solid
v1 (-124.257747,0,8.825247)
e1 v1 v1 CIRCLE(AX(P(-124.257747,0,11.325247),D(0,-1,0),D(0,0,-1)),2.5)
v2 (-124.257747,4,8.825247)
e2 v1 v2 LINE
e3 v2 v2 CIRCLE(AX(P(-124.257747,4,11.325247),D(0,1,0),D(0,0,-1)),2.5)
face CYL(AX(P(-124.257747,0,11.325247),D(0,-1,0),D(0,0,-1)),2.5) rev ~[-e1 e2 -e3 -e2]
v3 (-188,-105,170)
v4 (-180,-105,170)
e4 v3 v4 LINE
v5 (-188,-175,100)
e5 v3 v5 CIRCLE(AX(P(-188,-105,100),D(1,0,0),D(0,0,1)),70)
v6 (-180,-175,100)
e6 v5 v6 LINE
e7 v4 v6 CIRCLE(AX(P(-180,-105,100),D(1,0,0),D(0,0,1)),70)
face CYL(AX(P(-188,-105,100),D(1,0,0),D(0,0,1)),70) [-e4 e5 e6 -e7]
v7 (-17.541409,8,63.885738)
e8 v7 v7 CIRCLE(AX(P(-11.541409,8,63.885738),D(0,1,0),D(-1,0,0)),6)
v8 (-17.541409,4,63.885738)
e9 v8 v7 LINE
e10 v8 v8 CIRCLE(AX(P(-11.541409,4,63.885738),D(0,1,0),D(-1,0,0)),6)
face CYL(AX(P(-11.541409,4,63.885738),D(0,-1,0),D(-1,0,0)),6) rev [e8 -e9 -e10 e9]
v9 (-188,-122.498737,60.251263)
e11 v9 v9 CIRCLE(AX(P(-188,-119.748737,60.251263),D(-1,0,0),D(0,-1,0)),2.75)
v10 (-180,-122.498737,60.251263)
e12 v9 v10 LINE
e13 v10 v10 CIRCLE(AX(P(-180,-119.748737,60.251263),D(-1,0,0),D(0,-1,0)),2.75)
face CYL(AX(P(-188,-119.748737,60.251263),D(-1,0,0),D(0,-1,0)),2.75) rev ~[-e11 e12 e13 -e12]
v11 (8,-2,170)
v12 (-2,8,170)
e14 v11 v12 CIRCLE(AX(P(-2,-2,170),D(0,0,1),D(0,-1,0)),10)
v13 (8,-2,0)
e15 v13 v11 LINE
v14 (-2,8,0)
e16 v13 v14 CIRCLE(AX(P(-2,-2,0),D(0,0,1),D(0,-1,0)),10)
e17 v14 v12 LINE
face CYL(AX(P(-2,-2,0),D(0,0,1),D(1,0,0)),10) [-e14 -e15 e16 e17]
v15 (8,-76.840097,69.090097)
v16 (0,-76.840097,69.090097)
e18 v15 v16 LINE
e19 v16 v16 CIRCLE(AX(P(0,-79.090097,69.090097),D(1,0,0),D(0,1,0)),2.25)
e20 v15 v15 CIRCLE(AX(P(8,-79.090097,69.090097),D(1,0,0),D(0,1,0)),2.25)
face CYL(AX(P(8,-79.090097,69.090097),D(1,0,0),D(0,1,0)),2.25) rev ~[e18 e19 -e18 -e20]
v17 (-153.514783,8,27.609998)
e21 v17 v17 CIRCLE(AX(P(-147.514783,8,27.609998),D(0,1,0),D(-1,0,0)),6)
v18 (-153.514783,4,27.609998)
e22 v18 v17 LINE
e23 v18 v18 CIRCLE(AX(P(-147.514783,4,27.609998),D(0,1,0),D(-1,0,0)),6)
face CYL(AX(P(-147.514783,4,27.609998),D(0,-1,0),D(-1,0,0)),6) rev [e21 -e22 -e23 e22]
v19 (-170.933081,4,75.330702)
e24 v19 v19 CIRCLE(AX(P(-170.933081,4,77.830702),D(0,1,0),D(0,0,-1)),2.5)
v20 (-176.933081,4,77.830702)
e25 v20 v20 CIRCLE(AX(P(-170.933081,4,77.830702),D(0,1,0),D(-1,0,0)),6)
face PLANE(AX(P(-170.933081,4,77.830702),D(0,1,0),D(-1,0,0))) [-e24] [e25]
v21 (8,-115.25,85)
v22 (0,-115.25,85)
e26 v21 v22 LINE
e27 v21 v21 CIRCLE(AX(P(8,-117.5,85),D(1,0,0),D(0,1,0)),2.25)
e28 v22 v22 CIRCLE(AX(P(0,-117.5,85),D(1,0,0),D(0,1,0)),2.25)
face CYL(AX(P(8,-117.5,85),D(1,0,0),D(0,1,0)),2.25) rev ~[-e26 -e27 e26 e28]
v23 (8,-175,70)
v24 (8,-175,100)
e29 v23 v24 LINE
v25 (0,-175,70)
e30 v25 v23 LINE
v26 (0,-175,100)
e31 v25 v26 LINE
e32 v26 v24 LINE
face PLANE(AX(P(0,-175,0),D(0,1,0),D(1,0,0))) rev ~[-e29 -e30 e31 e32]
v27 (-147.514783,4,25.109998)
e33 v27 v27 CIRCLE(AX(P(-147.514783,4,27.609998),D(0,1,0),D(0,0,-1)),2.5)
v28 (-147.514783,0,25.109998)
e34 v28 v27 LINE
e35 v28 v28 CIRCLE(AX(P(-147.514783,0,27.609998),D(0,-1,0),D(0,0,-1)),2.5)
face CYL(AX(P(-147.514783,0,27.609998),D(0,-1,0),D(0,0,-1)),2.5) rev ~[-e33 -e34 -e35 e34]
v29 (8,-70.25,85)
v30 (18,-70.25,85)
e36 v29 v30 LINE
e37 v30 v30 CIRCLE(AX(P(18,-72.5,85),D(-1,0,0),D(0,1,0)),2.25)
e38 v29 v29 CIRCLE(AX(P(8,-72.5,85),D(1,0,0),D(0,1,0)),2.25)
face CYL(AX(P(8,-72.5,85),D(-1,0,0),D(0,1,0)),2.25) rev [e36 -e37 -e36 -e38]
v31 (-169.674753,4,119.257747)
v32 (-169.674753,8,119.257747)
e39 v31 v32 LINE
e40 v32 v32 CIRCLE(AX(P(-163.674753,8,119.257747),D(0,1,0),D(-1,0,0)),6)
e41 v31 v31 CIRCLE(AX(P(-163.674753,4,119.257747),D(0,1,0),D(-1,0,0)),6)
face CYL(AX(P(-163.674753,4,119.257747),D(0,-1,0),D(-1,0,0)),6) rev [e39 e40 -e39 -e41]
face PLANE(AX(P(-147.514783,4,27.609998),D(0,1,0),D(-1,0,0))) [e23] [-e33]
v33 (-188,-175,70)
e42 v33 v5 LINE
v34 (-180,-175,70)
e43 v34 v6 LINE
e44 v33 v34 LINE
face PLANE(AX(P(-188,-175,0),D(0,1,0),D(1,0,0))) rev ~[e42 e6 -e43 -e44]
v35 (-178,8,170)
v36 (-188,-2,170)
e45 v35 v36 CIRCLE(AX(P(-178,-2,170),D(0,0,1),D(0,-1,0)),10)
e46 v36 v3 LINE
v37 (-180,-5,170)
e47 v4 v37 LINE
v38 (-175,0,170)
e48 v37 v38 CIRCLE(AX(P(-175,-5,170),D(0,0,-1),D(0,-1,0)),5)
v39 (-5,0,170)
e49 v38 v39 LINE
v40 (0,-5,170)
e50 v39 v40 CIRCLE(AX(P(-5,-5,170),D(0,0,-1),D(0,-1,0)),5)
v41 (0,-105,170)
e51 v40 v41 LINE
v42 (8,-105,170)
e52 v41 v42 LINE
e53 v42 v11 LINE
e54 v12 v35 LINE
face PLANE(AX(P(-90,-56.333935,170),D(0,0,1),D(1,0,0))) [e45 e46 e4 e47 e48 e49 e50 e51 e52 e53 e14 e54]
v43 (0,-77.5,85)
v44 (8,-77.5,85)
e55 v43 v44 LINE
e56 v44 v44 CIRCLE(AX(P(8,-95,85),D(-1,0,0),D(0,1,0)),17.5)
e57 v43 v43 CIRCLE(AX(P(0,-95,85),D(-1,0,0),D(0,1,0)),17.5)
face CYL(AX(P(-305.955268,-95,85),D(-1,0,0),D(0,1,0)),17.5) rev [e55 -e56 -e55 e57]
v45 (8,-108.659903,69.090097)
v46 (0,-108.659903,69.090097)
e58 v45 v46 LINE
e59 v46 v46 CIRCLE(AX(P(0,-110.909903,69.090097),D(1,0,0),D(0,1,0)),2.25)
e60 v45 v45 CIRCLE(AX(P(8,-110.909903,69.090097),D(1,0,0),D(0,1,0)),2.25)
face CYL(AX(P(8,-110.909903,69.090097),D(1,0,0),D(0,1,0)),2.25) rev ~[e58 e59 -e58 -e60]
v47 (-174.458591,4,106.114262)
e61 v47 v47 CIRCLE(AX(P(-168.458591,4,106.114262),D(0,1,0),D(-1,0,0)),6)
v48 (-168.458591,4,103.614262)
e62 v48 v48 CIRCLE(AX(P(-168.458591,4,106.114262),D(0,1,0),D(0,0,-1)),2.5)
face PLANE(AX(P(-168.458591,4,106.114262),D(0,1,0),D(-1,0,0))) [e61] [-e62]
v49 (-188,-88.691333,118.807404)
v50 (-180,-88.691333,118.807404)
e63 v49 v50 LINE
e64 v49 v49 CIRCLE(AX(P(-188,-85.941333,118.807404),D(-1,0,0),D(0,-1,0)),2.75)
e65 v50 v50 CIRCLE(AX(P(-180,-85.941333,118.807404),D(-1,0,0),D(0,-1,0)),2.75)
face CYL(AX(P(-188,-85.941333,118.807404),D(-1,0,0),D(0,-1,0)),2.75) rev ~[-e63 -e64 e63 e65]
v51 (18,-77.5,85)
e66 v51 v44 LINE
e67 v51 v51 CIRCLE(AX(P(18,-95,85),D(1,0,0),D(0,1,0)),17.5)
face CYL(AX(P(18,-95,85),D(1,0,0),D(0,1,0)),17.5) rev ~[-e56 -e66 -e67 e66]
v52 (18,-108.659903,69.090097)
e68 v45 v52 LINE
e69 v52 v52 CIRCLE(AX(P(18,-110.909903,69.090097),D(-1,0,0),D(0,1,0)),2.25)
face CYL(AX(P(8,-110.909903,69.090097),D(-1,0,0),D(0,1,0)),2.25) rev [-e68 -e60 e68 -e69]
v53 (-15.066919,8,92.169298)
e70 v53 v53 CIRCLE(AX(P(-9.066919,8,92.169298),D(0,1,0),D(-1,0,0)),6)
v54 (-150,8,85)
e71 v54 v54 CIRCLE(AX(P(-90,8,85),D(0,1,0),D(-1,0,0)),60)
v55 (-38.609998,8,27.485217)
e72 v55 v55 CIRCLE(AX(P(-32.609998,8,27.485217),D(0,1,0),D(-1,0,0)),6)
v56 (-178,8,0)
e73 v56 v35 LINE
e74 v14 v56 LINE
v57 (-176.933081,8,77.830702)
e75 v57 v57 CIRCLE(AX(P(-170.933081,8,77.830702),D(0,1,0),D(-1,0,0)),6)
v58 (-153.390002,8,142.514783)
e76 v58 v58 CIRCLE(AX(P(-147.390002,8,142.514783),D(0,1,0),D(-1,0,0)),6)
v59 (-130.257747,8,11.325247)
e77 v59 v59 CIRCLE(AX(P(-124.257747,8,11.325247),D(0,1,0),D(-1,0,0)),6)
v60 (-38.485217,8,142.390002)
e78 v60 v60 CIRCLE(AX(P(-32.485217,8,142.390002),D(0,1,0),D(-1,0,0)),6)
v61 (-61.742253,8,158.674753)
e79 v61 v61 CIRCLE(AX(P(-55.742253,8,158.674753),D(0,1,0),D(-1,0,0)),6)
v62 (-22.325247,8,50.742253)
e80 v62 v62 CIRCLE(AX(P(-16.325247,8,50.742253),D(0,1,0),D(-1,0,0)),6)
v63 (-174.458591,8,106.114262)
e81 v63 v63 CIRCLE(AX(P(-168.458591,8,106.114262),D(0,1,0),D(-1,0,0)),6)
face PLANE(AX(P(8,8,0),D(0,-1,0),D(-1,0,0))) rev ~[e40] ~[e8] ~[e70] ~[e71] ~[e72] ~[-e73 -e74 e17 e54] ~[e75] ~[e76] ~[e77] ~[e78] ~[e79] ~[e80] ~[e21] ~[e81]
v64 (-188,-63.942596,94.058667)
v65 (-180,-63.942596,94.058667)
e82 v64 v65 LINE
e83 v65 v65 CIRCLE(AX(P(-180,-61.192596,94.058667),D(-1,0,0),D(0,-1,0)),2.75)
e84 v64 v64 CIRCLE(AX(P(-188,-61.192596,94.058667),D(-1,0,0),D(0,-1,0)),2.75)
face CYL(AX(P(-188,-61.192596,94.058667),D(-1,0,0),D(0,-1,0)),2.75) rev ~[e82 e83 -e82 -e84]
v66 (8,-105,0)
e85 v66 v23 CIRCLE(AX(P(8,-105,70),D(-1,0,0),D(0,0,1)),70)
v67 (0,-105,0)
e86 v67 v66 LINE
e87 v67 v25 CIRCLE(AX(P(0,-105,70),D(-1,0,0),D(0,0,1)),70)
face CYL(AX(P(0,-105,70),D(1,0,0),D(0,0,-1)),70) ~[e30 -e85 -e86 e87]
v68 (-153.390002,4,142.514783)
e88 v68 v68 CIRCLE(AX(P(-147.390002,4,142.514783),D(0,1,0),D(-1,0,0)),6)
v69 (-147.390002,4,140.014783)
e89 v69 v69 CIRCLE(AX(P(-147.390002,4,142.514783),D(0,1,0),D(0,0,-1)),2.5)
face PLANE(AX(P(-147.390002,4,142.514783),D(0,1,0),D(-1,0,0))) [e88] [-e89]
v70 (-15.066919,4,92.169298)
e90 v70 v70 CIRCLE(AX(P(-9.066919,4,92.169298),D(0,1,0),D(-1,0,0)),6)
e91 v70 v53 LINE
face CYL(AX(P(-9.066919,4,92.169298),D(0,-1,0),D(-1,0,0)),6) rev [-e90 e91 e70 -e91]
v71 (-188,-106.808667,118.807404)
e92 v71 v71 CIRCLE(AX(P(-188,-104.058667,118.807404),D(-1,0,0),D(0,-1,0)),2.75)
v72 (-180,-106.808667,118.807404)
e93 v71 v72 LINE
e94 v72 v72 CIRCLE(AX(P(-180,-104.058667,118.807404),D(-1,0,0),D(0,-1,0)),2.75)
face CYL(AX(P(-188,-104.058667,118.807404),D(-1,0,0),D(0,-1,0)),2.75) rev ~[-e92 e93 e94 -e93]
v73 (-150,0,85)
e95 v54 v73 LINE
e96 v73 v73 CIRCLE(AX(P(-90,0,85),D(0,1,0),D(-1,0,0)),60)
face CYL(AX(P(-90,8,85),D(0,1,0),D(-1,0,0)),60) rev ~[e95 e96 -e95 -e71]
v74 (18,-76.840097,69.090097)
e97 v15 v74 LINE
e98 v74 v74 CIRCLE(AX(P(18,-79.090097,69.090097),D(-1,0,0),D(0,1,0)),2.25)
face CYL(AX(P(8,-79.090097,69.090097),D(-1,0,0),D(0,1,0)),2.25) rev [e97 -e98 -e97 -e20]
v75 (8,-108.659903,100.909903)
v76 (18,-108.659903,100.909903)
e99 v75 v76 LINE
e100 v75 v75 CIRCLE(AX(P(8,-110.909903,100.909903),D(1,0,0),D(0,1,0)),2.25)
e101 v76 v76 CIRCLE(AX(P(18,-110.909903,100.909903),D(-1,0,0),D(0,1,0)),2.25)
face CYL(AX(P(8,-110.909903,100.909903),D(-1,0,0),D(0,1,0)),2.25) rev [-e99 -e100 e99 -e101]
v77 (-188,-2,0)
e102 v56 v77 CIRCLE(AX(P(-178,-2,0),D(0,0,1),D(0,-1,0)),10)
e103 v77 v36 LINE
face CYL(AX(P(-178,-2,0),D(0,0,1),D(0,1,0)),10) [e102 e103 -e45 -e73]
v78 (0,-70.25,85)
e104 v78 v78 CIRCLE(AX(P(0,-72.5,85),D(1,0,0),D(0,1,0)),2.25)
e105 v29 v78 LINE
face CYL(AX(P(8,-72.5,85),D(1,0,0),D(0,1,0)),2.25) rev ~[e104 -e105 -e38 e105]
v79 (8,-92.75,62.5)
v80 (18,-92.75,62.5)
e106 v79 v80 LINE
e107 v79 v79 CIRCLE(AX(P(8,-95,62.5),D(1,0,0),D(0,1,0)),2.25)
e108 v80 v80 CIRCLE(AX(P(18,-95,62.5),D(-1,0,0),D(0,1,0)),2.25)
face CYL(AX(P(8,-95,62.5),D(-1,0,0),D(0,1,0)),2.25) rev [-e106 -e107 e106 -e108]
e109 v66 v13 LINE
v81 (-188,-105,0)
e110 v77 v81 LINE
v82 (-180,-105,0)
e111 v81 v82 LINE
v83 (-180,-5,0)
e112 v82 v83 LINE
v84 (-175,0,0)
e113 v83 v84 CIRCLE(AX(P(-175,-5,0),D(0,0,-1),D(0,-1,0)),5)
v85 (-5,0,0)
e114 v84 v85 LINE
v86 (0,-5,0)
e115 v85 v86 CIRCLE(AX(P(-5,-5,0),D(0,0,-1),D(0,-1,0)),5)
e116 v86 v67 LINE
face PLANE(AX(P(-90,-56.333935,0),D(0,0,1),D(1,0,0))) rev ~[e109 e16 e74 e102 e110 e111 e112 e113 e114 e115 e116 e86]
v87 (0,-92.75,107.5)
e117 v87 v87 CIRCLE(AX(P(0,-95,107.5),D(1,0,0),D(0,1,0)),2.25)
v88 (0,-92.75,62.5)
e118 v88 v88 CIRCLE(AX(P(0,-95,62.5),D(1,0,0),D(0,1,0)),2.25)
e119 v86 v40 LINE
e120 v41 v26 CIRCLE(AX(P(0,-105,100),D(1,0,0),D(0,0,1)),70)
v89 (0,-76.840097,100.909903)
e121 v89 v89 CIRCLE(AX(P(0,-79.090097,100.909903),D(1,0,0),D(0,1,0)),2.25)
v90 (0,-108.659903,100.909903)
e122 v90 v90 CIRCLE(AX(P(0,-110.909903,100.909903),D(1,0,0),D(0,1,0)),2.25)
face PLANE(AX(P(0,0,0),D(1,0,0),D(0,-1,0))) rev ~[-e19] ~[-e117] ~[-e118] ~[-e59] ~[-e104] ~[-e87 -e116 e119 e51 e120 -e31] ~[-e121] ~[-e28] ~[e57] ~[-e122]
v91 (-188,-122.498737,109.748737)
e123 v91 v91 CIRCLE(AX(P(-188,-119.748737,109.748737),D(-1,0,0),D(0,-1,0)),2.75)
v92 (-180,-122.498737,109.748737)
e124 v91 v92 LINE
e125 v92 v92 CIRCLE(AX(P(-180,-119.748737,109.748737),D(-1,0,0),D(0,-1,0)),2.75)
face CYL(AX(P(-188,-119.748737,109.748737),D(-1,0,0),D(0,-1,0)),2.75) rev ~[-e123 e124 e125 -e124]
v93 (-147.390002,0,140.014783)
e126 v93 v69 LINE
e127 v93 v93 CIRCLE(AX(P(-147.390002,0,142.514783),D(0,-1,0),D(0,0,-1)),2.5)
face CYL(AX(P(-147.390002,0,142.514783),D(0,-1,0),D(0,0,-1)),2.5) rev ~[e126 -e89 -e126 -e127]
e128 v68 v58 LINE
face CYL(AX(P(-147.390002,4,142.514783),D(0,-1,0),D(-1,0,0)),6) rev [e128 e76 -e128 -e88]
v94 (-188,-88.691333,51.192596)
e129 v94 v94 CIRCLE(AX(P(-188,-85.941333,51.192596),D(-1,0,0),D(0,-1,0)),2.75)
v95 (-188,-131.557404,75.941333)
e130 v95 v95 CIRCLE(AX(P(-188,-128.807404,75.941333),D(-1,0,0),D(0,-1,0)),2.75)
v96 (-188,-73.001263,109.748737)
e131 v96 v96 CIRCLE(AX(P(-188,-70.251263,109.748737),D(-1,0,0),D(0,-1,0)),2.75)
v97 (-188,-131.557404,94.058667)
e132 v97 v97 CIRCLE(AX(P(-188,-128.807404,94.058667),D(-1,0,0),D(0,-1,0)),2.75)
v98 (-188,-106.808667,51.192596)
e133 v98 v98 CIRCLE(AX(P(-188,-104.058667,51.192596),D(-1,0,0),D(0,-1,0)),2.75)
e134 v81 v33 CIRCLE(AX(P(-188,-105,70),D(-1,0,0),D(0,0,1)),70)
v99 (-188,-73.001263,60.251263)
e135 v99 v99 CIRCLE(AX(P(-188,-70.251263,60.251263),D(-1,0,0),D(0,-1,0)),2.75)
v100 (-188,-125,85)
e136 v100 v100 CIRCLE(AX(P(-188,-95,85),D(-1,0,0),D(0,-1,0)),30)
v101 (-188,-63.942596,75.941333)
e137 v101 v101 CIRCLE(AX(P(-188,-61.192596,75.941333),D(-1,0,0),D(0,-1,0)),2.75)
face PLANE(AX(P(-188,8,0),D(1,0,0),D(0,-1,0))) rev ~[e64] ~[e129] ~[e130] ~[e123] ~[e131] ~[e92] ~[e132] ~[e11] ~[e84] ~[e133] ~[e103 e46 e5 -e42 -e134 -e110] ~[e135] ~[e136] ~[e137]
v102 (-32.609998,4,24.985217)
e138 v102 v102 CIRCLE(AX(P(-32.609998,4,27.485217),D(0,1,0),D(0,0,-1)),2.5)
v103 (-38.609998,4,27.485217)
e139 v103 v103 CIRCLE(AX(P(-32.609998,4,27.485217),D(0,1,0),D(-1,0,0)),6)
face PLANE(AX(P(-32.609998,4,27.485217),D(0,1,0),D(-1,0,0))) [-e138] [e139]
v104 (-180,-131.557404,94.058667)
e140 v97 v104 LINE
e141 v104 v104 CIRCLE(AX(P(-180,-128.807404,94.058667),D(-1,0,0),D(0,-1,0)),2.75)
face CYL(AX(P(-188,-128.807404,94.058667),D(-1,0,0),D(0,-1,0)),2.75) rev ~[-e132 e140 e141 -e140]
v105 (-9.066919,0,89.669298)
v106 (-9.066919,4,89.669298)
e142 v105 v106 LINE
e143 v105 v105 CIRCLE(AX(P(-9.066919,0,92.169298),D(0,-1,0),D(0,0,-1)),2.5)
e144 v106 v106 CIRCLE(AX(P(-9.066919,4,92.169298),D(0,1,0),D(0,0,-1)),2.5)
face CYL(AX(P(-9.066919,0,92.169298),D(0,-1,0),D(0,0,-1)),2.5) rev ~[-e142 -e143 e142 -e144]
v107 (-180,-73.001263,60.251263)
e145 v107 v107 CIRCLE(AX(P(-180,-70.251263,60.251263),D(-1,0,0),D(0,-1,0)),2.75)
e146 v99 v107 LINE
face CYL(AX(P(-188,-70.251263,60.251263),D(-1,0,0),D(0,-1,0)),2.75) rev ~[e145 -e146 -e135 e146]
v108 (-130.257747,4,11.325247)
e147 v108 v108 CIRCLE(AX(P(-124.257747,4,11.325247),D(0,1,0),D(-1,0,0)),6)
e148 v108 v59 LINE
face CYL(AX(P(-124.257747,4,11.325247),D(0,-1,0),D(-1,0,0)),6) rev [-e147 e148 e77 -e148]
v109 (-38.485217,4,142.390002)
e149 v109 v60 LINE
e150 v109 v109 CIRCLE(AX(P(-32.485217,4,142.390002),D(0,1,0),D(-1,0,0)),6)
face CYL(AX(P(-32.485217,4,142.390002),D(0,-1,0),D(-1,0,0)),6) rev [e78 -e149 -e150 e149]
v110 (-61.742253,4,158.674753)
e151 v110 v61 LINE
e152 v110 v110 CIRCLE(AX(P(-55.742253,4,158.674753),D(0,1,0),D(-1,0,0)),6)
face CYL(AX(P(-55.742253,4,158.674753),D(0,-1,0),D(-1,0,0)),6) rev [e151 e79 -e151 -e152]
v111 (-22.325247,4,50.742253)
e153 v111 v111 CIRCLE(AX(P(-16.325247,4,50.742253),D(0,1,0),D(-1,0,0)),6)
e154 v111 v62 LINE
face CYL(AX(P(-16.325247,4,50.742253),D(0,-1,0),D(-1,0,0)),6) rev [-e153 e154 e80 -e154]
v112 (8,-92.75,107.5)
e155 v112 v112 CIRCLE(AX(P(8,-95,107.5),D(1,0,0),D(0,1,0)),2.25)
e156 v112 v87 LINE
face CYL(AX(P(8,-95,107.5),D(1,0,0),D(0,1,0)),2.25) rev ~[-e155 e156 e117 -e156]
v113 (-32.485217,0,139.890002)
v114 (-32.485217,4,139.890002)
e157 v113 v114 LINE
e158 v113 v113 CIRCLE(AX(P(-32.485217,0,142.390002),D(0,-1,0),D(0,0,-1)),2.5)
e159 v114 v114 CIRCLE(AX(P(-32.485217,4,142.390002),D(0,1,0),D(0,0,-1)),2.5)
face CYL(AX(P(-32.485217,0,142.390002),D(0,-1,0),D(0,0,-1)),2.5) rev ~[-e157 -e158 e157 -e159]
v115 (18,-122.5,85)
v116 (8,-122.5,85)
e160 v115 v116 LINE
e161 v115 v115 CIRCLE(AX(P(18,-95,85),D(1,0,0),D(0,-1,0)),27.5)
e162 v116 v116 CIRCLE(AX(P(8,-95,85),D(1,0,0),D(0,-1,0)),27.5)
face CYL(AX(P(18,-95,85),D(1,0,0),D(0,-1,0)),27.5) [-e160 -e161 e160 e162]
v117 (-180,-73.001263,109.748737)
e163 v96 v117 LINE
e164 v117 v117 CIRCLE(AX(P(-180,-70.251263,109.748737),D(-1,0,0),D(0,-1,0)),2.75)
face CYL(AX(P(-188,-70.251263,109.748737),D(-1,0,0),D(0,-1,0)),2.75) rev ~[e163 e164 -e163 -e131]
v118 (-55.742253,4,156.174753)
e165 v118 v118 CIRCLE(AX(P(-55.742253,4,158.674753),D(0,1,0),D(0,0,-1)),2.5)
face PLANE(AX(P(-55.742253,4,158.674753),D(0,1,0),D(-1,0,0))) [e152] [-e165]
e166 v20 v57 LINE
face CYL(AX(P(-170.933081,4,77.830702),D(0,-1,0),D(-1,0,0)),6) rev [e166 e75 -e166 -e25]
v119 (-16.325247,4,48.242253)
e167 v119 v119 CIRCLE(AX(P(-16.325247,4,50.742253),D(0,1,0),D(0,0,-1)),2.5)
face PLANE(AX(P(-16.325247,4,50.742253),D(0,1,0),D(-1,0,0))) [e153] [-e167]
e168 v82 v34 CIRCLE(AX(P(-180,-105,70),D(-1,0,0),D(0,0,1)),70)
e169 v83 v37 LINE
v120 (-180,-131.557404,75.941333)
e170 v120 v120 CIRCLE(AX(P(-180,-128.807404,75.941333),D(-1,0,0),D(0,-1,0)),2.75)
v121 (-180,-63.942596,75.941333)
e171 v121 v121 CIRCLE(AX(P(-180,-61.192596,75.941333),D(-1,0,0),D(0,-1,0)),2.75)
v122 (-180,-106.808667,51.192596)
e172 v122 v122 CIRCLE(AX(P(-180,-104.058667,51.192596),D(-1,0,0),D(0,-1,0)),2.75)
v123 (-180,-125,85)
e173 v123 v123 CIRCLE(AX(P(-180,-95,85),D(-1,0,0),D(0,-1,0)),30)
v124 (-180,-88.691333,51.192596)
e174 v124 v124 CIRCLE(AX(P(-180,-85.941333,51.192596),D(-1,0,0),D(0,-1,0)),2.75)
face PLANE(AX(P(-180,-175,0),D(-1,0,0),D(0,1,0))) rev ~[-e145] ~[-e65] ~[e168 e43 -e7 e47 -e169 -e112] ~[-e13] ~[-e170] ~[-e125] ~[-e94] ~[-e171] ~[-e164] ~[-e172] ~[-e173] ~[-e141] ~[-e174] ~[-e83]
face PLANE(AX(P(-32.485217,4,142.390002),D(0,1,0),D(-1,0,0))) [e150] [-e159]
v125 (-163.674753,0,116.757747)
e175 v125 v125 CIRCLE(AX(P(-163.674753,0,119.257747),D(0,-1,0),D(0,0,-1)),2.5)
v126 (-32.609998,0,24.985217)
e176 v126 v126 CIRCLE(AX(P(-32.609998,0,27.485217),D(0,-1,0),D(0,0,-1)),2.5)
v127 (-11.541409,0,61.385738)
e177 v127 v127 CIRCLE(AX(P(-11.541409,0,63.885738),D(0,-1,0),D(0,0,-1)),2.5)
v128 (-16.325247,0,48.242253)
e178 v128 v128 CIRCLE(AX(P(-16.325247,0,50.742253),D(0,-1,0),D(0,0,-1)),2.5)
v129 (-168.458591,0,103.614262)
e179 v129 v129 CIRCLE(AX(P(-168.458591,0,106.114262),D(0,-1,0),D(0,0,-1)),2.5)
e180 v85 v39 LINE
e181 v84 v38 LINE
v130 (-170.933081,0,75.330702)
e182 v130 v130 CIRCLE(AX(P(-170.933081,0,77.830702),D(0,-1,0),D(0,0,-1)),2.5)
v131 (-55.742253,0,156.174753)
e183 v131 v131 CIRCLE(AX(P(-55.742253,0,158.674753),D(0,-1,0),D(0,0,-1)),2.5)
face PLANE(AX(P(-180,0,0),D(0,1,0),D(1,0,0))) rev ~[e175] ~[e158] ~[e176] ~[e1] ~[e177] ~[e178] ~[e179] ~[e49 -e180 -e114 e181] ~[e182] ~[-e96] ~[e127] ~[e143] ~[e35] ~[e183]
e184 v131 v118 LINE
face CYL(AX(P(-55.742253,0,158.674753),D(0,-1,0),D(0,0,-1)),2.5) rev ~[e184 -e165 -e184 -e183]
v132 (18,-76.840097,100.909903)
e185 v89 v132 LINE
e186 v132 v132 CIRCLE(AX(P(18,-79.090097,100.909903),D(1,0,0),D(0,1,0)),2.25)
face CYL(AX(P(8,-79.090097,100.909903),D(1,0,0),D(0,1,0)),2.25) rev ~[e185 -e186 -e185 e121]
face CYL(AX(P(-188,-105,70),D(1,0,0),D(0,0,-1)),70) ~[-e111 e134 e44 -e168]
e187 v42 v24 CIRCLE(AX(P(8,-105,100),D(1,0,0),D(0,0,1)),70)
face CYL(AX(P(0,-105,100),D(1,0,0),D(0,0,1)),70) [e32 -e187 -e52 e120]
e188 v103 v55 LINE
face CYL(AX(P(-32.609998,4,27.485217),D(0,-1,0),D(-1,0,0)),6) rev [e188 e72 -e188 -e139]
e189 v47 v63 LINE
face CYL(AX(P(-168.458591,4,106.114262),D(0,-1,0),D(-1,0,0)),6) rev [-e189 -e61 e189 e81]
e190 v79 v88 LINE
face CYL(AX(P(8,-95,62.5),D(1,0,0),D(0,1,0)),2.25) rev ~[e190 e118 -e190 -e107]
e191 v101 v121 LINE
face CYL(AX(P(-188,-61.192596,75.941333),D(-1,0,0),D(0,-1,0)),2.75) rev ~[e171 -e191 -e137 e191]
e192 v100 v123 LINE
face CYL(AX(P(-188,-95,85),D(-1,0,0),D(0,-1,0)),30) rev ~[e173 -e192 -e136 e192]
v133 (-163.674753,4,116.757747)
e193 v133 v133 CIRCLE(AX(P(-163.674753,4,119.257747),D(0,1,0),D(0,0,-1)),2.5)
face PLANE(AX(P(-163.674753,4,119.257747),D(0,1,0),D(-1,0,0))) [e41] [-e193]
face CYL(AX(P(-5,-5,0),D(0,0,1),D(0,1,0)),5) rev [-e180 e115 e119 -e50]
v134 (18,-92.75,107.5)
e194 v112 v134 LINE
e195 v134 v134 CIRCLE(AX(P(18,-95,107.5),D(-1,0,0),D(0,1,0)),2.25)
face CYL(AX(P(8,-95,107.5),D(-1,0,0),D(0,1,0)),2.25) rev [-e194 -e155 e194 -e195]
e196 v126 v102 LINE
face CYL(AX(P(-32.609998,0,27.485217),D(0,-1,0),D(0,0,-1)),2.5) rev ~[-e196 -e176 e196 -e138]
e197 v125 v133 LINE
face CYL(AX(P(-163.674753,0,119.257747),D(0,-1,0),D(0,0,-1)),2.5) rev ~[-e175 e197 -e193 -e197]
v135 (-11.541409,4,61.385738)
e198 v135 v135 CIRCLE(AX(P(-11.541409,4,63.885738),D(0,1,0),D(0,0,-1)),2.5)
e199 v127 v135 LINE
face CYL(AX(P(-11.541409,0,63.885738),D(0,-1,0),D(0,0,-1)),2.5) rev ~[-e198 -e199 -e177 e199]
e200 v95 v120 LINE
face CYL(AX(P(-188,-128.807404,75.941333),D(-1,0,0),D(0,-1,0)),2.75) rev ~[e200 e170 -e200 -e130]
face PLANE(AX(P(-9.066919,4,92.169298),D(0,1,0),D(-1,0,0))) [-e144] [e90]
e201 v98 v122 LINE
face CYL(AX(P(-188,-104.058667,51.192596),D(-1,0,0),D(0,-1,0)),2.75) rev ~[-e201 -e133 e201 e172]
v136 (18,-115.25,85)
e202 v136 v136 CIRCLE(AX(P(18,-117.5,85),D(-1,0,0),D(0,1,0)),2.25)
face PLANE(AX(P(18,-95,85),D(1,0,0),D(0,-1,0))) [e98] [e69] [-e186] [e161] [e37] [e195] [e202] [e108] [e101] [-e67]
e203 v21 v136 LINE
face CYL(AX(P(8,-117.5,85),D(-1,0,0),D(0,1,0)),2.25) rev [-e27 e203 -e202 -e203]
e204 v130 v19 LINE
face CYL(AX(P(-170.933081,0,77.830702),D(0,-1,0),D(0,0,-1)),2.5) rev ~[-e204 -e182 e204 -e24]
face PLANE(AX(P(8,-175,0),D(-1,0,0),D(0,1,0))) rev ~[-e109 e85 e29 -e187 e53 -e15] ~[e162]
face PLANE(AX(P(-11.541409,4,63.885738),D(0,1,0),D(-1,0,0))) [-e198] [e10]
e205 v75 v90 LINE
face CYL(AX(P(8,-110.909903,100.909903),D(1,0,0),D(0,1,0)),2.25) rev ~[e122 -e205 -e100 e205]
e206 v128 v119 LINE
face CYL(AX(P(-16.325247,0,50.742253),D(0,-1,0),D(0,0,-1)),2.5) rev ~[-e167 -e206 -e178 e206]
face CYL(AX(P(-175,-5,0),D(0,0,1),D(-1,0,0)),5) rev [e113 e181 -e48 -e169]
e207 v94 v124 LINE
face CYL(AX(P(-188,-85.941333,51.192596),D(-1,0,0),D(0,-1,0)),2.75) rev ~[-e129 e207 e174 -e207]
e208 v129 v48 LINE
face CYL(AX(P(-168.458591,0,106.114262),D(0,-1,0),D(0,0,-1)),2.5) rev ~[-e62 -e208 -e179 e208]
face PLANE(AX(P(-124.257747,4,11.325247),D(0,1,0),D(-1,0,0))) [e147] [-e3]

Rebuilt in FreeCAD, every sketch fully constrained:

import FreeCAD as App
import Part
import Sketcher

V = App.Vector
Q = App.Units.Quantity


def edges_at(feature, points):
    """Names of the edges that pass closest to the given points."""
    edges = feature.Shape.Edges
    near = lambda p: min(range(len(edges)), key=lambda i: edges[i].distToShape(Part.Vertex(*p))[0])
    return sorted({f"Edge{near(p) + 1}" for p in points})


def add_polygon(sketch, points):
    """Adds a closed chain of lines whose ends are joined by coincident constraints."""
    first, n = sketch.GeometryCount, len(points)
    for a, b in zip(points, points[1:] + points[:1]):
        sketch.addGeometry(Part.LineSegment(App.Vector(*a, 0), App.Vector(*b, 0)), False)
    for i in range(n):
        sketch.addConstraint(Sketcher.Constraint("Coincident", first + i, 2, first + (i + 1) % n, 1))

doc = App.newDocument("Part")
body = doc.addObject("PartDesign::Body", "Body")

# Sketch on XY plane
sketch1 = body.newObject("Sketcher::SketchObject", "Sketch")
sketch1.AttachmentSupport = (doc.getObject("XY_Plane"), [""])
sketch1.MapMode = "FlatFace"
add_polygon(sketch1, [(-180, 0), (0, 0), (0, -175), (8, -175), (8, 8), (-188, 8), (-188, -175), (-180, -175)])  # lines 0-7
sketch1.addConstraint([
    Sketcher.Constraint("Horizontal", 0),
    Sketcher.Constraint("Vertical", 1),
    Sketcher.Constraint("Horizontal", 2),
    Sketcher.Constraint("Vertical", 3),
    Sketcher.Constraint("Horizontal", 4),
    Sketcher.Constraint("Vertical", 5),
    Sketcher.Constraint("Horizontal", 6),
    Sketcher.Constraint("Vertical", 7),
    Sketcher.Constraint("Coincident", 0, 2, -1, 1),
    Sketcher.Constraint("Horizontal", 2, 2, 5, 2),
    Sketcher.Constraint("Equal", 2, 6),
    Sketcher.Constraint("DistanceX", 0, 1, 0, 2, Q("180 mm")),
    Sketcher.Constraint("DistanceX", 2, 1, 2, 2, Q("8 mm")),
    Sketcher.Constraint("DistanceY", 1, 2, 1, 1, Q("175 mm")),
    Sketcher.Constraint("DistanceY", 3, 1, 3, 2, Q("183 mm")),
])
pad1 = body.newObject("PartDesign::Pad", "Pad")
pad1.Profile = sketch1
pad1.Length = 170

# Sketch on XZ plane
sketch2 = body.newObject("Sketcher::SketchObject", "Sketch001")
sketch2.AttachmentSupport = (doc.getObject("XZ_Plane"), [""])
sketch2.MapMode = "FlatFace"
sketch2.AttachmentOffset = App.Placement(V(0, 0, -8), App.Rotation())
sketch2.addGeometry(Part.Circle(V(-90, 85, 0), V(0, 0, 1), 60), False)
sketch2.addConstraint([
    Sketcher.Constraint("Diameter", 0, Q("120 mm")),
    Sketcher.Constraint("DistanceX", 0, 3, -1, 1, Q("90 mm")),
    Sketcher.Constraint("DistanceY", -1, 1, 0, 3, Q("85 mm")),
])
pocket1 = body.newObject("PartDesign::Pocket", "Pocket")
pocket1.Profile = sketch2
pocket1.Length = 180
pocket1.Reversed = True

# Sketch on YZ plane
sketch3 = body.newObject("Sketcher::SketchObject", "Sketch002")
sketch3.AttachmentSupport = (doc.getObject("YZ_Plane"), [""])
sketch3.MapMode = "FlatFace"
sketch3.AttachmentOffset = App.Placement(V(0, 0, 8), App.Rotation())
sketch3.addGeometry(Part.Circle(V(-95, 85, 0), V(0, 0, 1), 17.5), False)
sketch3.addConstraint([
    Sketcher.Constraint("Diameter", 0, Q("35 mm")),
    Sketcher.Constraint("DistanceX", 0, 3, -1, 1, Q("95 mm")),
    Sketcher.Constraint("DistanceY", -1, 1, 0, 3, Q("85 mm")),
])
pocket2 = body.newObject("PartDesign::Pocket", "Pocket001")
pocket2.Profile = sketch3
pocket2.Type = "ThroughAll"
pocket2.Midplane = True
doc.recompute()

fillet = body.newObject("PartDesign::Fillet", "Fillet")
fillet.Base = (pocket2, edges_at(pocket2, [
    (4, -175, 0),
    (4, -175, 170),
    (-184, -175, 170),
    (-184, -175, 0),
]))
fillet.Radius = 70
doc.recompute()

fillet2 = body.newObject("PartDesign::Fillet", "Fillet001")
fillet2.Base = (fillet, edges_at(fillet, [(0, 0, 85), (-180, 0, 85)]))
fillet2.Radius = 5
doc.recompute()

fillet3 = body.newObject("PartDesign::Fillet", "Fillet002")
fillet3.Base = (fillet2, edges_at(fillet2, [(-188, 8, 85), (8, 8, 85)]))
fillet3.Radius = 10

# Sketch on YZ plane
sketch4 = body.newObject("Sketcher::SketchObject", "Sketch003")
sketch4.AttachmentSupport = (doc.getObject("YZ_Plane"), [""])
sketch4.MapMode = "FlatFace"
sketch4.AttachmentOffset = App.Placement(V(0, 0, -188), App.Rotation())
sketch4.addGeometry(Part.Circle(V(-95, 85, 0), V(0, 0, 1), 30), False)
sketch4.addConstraint([
    Sketcher.Constraint("Diameter", 0, Q("60 mm")),
    Sketcher.Constraint("DistanceX", 0, 3, -1, 1, Q("95 mm")),
    Sketcher.Constraint("DistanceY", -1, 1, 0, 3, Q("85 mm")),
])
pocket3 = body.newObject("PartDesign::Pocket", "Pocket002")
pocket3.Profile = sketch4
pocket3.Length = 39
pocket3.Reversed = True

# Sketch on XZ plane
sketch5 = body.newObject("Sketcher::SketchObject", "Sketch004")
sketch5.AttachmentSupport = (doc.getObject("XZ_Plane"), [""])
sketch5.MapMode = "FlatFace"
sketch5.addGeometry([
    Part.Circle(V(-55.742253, 158.674753, 0), V(0, 0, 1), 2.5),  # 0
    Part.Circle(V(-32.485217, 142.390002, 0), V(0, 0, 1), 2.5),  # 1
    Part.Circle(V(-9.066919, 92.169298, 0), V(0, 0, 1), 2.5),  # 2
    Part.Circle(V(-11.541409, 63.885738, 0), V(0, 0, 1), 2.5),  # 3
    Part.Circle(V(-16.325247, 50.742253, 0), V(0, 0, 1), 2.5),  # 4
    Part.Circle(V(-32.609998, 27.485217, 0), V(0, 0, 1), 2.5),  # 5
    Part.Circle(V(-124.257747, 11.325247, 0), V(0, 0, 1), 2.5),  # 6
    Part.Circle(V(-147.514783, 27.609998, 0), V(0, 0, 1), 2.5),  # 7
    Part.Circle(V(-170.933081, 77.830702, 0), V(0, 0, 1), 2.5),  # 8
    Part.Circle(V(-168.458591, 106.114262, 0), V(0, 0, 1), 2.5),  # 9
    Part.Circle(V(-163.674753, 119.257747, 0), V(0, 0, 1), 2.5),  # 10
    Part.Circle(V(-147.390002, 142.514783, 0), V(0, 0, 1), 2.5),  # 11
], False)
sketch5.addConstraint([
    Sketcher.Constraint("Equal", 0, 1),
    Sketcher.Constraint("Equal", 1, 2),
    Sketcher.Constraint("Equal", 2, 3),
    Sketcher.Constraint("Equal", 3, 4),
    Sketcher.Constraint("Equal", 4, 5),
    Sketcher.Constraint("Equal", 5, 6),
    Sketcher.Constraint("Equal", 6, 7),
    Sketcher.Constraint("Equal", 7, 8),
    Sketcher.Constraint("Equal", 8, 9),
    Sketcher.Constraint("Equal", 9, 10),
    Sketcher.Constraint("Equal", 10, 11),
    Sketcher.Constraint("Diameter", 0, Q("5 mm")),
    Sketcher.Constraint("DistanceY", -1, 1, 1, 3, Q("142.390002 mm")),
    Sketcher.Constraint("DistanceX", 5, 3, -1, 1, Q("32.609998 mm")),
    Sketcher.Constraint("DistanceY", -1, 1, 7, 3, Q("27.609998 mm")),
    Sketcher.Constraint("DistanceX", 11, 3, -1, 1, Q("147.390002 mm")),
    Sketcher.Constraint("DistanceX", 1, 3, 2, 3, Q("23.418299 mm")),
    Sketcher.Constraint("DistanceY", 4, 3, 0, 3, Q("107.9325 mm")),
    Sketcher.Constraint("DistanceX", 6, 3, 4, 3, Q("107.9325 mm")),
    Sketcher.Constraint("DistanceY", 7, 3, 2, 3, Q("64.559299 mm")),
    Sketcher.Constraint("DistanceX", 8, 3, 7, 3, Q("23.418299 mm")),
    Sketcher.Constraint("DistanceY", 8, 3, 1, 3, Q("64.559299 mm")),
    Sketcher.Constraint("DistanceY", 6, 3, 10, 3, Q("107.9325 mm")),
    Sketcher.Constraint("DistanceX", 10, 3, 0, 3, Q("107.9325 mm")),
    Sketcher.Constraint("DistanceX", 2, 3, -1, 1, Q("9.066919 mm")),
    Sketcher.Constraint("DistanceX", 3, 3, -1, 1, Q("11.541409 mm")),
    Sketcher.Constraint("DistanceY", -1, 1, 3, 3, Q("63.885738 mm")),
    Sketcher.Constraint("DistanceX", 8, 3, -1, 1, Q("170.933081 mm")),
    Sketcher.Constraint("DistanceX", 9, 3, -1, 1, Q("168.458591 mm")),
    Sketcher.Constraint("DistanceY", -1, 1, 9, 3, Q("106.114262 mm")),
    Sketcher.Constraint("DistanceY", 1, 3, 0, 3, Q("16.284752 mm")),
    Sketcher.Constraint("DistanceX", 4, 3, 2, 3, Q("7.258328 mm")),
    Sketcher.Constraint("DistanceY", 5, 3, 3, 3, Q("36.400521 mm")),
    Sketcher.Constraint("DistanceY", 6, 3, 5, 3, Q("16.159971 mm")),
    Sketcher.Constraint("DistanceX", 8, 3, 0, 3, Q("115.190828 mm")),
    Sketcher.Constraint("DistanceY", 9, 3, 11, 3, Q("36.400521 mm")),
])
pocket4 = body.newObject("PartDesign::Pocket", "Pocket003")
pocket4.Profile = sketch5
pocket4.Length = 10

# Sketch on XZ plane
sketch6 = body.newObject("Sketcher::SketchObject", "Sketch005")
sketch6.AttachmentSupport = (doc.getObject("XZ_Plane"), [""])
sketch6.MapMode = "FlatFace"
sketch6.AttachmentOffset = App.Placement(V(0, 0, -4), App.Rotation())
sketch6.addGeometry([
    Part.Circle(V(-32.485217, 142.390002, 0), V(0, 0, 1), 6),  # 0
    Part.Circle(V(-32.485217, 142.390002, 0), V(0, 0, 1), 2.5),  # 1
    Part.Circle(V(-55.742253, 158.674753, 0), V(0, 0, 1), 6),  # 2
    Part.Circle(V(-55.742253, 158.674753, 0), V(0, 0, 1), 2.5),  # 3
    Part.Circle(V(-147.390002, 142.514783, 0), V(0, 0, 1), 6),  # 4
    Part.Circle(V(-147.390002, 142.514783, 0), V(0, 0, 1), 2.5),  # 5
    Part.Circle(V(-163.674753, 119.257747, 0), V(0, 0, 1), 6),  # 6
    Part.Circle(V(-163.674753, 119.257747, 0), V(0, 0, 1), 2.5),  # 7
    Part.Circle(V(-168.458591, 106.114262, 0), V(0, 0, 1), 6),  # 8
    Part.Circle(V(-168.458591, 106.114262, 0), V(0, 0, 1), 2.5),  # 9
    Part.Circle(V(-170.933081, 77.830702, 0), V(0, 0, 1), 6),  # 10
    Part.Circle(V(-170.933081, 77.830702, 0), V(0, 0, 1), 2.5),  # 11
    Part.Circle(V(-147.514783, 27.609998, 0), V(0, 0, 1), 6),  # 12
    Part.Circle(V(-147.514783, 27.609998, 0), V(0, 0, 1), 2.5),  # 13
    Part.Circle(V(-124.257747, 11.325247, 0), V(0, 0, 1), 6),  # 14
    Part.Circle(V(-124.257747, 11.325247, 0), V(0, 0, 1), 2.5),  # 15
    Part.Circle(V(-32.609998, 27.485217, 0), V(0, 0, 1), 6),  # 16
    Part.Circle(V(-32.609998, 27.485217, 0), V(0, 0, 1), 2.5),  # 17
    Part.Circle(V(-16.325247, 50.742253, 0), V(0, 0, 1), 6),  # 18
    Part.Circle(V(-16.325247, 50.742253, 0), V(0, 0, 1), 2.5),  # 19
    Part.Circle(V(-11.541409, 63.885738, 0), V(0, 0, 1), 6),  # 20
    Part.Circle(V(-11.541409, 63.885738, 0), V(0, 0, 1), 2.5),  # 21
    Part.Circle(V(-9.066919, 92.169298, 0), V(0, 0, 1), 6),  # 22
    Part.Circle(V(-9.066919, 92.169298, 0), V(0, 0, 1), 2.5),  # 23
], False)
sketch6.addConstraint([
    Sketcher.Constraint("Coincident", 1, 3, 0, 3),
    Sketcher.Constraint("Coincident", 3, 3, 2, 3),
    Sketcher.Constraint("Coincident", 5, 3, 4, 3),
    Sketcher.Constraint("Coincident", 7, 3, 6, 3),
    Sketcher.Constraint("Coincident", 9, 3, 8, 3),
    Sketcher.Constraint("Coincident", 11, 3, 10, 3),
    Sketcher.Constraint("Coincident", 13, 3, 12, 3),
    Sketcher.Constraint("Coincident", 15, 3, 14, 3),
    Sketcher.Constraint("Coincident", 17, 3, 16, 3),
    Sketcher.Constraint("Coincident", 19, 3, 18, 3),
    Sketcher.Constraint("Coincident", 21, 3, 20, 3),
    Sketcher.Constraint("Coincident", 23, 3, 22, 3),
    Sketcher.Constraint("Equal", 0, 2),
    Sketcher.Constraint("Equal", 1, 3),
    Sketcher.Constraint("Equal", 2, 4),
    Sketcher.Constraint("Equal", 3, 5),
    Sketcher.Constraint("Equal", 4, 6),
    Sketcher.Constraint("Equal", 5, 7),
    Sketcher.Constraint("Equal", 6, 8),
    Sketcher.Constraint("Equal", 7, 9),
    Sketcher.Constraint("Equal", 8, 10),
    Sketcher.Constraint("Equal", 9, 11),
    Sketcher.Constraint("Equal", 10, 12),
    Sketcher.Constraint("Equal", 11, 13),
    Sketcher.Constraint("Equal", 12, 14),
    Sketcher.Constraint("Equal", 13, 15),
    Sketcher.Constraint("Equal", 14, 16),
    Sketcher.Constraint("Equal", 15, 17),
    Sketcher.Constraint("Equal", 16, 18),
    Sketcher.Constraint("Equal", 17, 19),
    Sketcher.Constraint("Equal", 18, 20),
    Sketcher.Constraint("Equal", 19, 21),
    Sketcher.Constraint("Equal", 20, 22),
    Sketcher.Constraint("Equal", 21, 23),
    Sketcher.Constraint("Diameter", 0, Q("12 mm")),
    Sketcher.Constraint("Diameter", 1, Q("5 mm")),
    Sketcher.Constraint("DistanceY", -1, 1, 0, 3, Q("142.390002 mm")),
    Sketcher.Constraint("DistanceX", 4, 3, -1, 1, Q("147.390002 mm")),
    Sketcher.Constraint("DistanceY", -1, 1, 12, 3, Q("27.609998 mm")),
    Sketcher.Constraint("DistanceX", 16, 3, -1, 1, Q("32.609998 mm")),
    Sketcher.Constraint("DistanceX", 6, 3, 2, 3, Q("107.9325 mm")),
    Sketcher.Constraint("DistanceX", 10, 3, 12, 3, Q("23.418299 mm")),
    Sketcher.Constraint("DistanceX", 14, 3, 18, 3, Q("107.9325 mm")),
    Sketcher.Constraint("DistanceX", 0, 3, 22, 3, Q("23.418299 mm")),
    Sketcher.Constraint("DistanceX", 8, 3, -1, 1, Q("168.458591 mm")),
    Sketcher.Constraint("DistanceY", -1, 1, 8, 3, Q("106.114262 mm")),
    Sketcher.Constraint("DistanceX", 10, 3, -1, 1, Q("170.933081 mm")),
    Sketcher.Constraint("DistanceX", 20, 3, -1, 1, Q("11.541409 mm")),
    Sketcher.Constraint("DistanceY", -1, 1, 20, 3, Q("63.885738 mm")),
    Sketcher.Constraint("DistanceX", 22, 3, -1, 1, Q("9.066919 mm")),
    Sketcher.Constraint("DistanceY", 0, 3, 2, 3, Q("16.284752 mm")),
    Sketcher.Constraint("DistanceX", 4, 3, 2, 3, Q("91.647749 mm")),
    Sketcher.Constraint("DistanceY", 4, 3, 2, 3, Q("16.159971 mm")),
    Sketcher.Constraint("DistanceY", 10, 3, 8, 3, Q("28.283559 mm")),
    Sketcher.Constraint("DistanceY", 12, 3, 6, 3, Q("91.647749 mm")),
    Sketcher.Constraint("DistanceY", 14, 3, 12, 3, Q("16.284752 mm")),
    Sketcher.Constraint("DistanceX", 14, 3, 16, 3, Q("91.647749 mm")),
    Sketcher.Constraint("DistanceY", 14, 3, 16, 3, Q("16.159971 mm")),
    Sketcher.Constraint("DistanceY", 18, 3, 0, 3, Q("91.647749 mm")),
    Sketcher.Constraint("DistanceY", 20, 3, 22, 3, Q("28.283559 mm")),
])
pocket5 = body.newObject("PartDesign::Pocket", "Pocket004")
pocket5.Profile = sketch6
pocket5.Length = 4

# Sketch on YZ plane
sketch7 = body.newObject("Sketcher::SketchObject", "Sketch006")
sketch7.AttachmentSupport = (doc.getObject("YZ_Plane"), [""])
sketch7.MapMode = "FlatFace"
sketch7.AttachmentOffset = App.Placement(V(0, 0, -188), App.Rotation())
sketch7.addGeometry([
    Part.Circle(V(-128.807404, 94.058667, 0), V(0, 0, 1), 2.75),  # 0
    Part.Circle(V(-128.807404, 75.941333, 0), V(0, 0, 1), 2.75),  # 1
    Part.Circle(V(-119.748737, 60.251263, 0), V(0, 0, 1), 2.75),  # 2
    Part.Circle(V(-104.058667, 51.192596, 0), V(0, 0, 1), 2.75),  # 3
    Part.Circle(V(-85.941333, 51.192596, 0), V(0, 0, 1), 2.75),  # 4
    Part.Circle(V(-70.251263, 60.251263, 0), V(0, 0, 1), 2.75),  # 5
    Part.Circle(V(-61.192596, 75.941333, 0), V(0, 0, 1), 2.75),  # 6
    Part.Circle(V(-61.192596, 94.058667, 0), V(0, 0, 1), 2.75),  # 7
    Part.Circle(V(-70.251263, 109.748737, 0), V(0, 0, 1), 2.75),  # 8
    Part.Circle(V(-85.941333, 118.807404, 0), V(0, 0, 1), 2.75),  # 9
    Part.Circle(V(-104.058667, 118.807404, 0), V(0, 0, 1), 2.75),  # 10
    Part.Circle(V(-119.748737, 109.748737, 0), V(0, 0, 1), 2.75),  # 11
], False)
sketch7.addConstraint([
    Sketcher.Constraint("Equal", 0, 1),
    Sketcher.Constraint("Equal", 1, 2),
    Sketcher.Constraint("Equal", 2, 3),
    Sketcher.Constraint("Equal", 3, 4),
    Sketcher.Constraint("Equal", 4, 5),
    Sketcher.Constraint("Equal", 5, 6),
    Sketcher.Constraint("Equal", 6, 7),
    Sketcher.Constraint("Equal", 7, 8),
    Sketcher.Constraint("Equal", 8, 9),
    Sketcher.Constraint("Equal", 9, 10),
    Sketcher.Constraint("Equal", 10, 11),
    Sketcher.Constraint("Horizontal", 3, 3, 4, 3),
    Sketcher.Constraint("Horizontal", 2, 3, 5, 3),
    Sketcher.Constraint("Horizontal", 1, 3, 6, 3),
    Sketcher.Constraint("Horizontal", 0, 3, 7, 3),
    Sketcher.Constraint("Horizontal", 9, 3, 10, 3),
    Sketcher.Constraint("Horizontal", 8, 3, 11, 3),
    Sketcher.Constraint("Vertical", 0, 3, 1, 3),
    Sketcher.Constraint("Vertical", 6, 3, 7, 3),
    Sketcher.Constraint("Vertical", 5, 3, 8, 3),
    Sketcher.Constraint("Vertical", 4, 3, 9, 3),
    Sketcher.Constraint("Vertical", 3, 3, 10, 3),
    Sketcher.Constraint("Vertical", 2, 3, 11, 3),
    Sketcher.Constraint("Diameter", 0, Q("5.5 mm")),
    Sketcher.Constraint("DistanceY", 2, 3, 1, 3, Q("15.690071 mm")),
    Sketcher.Constraint("DistanceX", 2, 3, 3, 3, Q("15.690071 mm")),
    Sketcher.Constraint("DistanceY", 3, 3, 0, 3, Q("42.86607 mm")),
    Sketcher.Constraint("DistanceX", 1, 3, 4, 3, Q("42.86607 mm")),
    Sketcher.Constraint("DistanceX", 4, 3, 5, 3, Q("15.690071 mm")),
    Sketcher.Constraint("DistanceX", 3, 3, 6, 3, Q("42.86607 mm")),
    Sketcher.Constraint("DistanceY", 7, 3, 8, 3, Q("15.690071 mm")),
    Sketcher.Constraint("DistanceY", 6, 3, 9, 3, Q("42.86607 mm")),
    Sketcher.Constraint("DistanceX", 0, 3, -1, 1, Q("128.807404 mm")),
    Sketcher.Constraint("DistanceY", -1, 1, 0, 3, Q("94.058667 mm")),
    Sketcher.Constraint("DistanceY", -1, 1, 1, 3, Q("75.941333 mm")),
    Sketcher.Constraint("DistanceX", 2, 3, -1, 1, Q("119.748737 mm")),
])
pocket6 = body.newObject("PartDesign::Pocket", "Pocket005")
pocket6.Profile = sketch7
pocket6.Length = 10
pocket6.Reversed = True

# Sketch on YZ plane
sketch8 = body.newObject("Sketcher::SketchObject", "Sketch007")
sketch8.AttachmentSupport = (doc.getObject("YZ_Plane"), [""])
sketch8.MapMode = "FlatFace"
sketch8.AttachmentOffset = App.Placement(V(0, 0, 18), App.Rotation())
sketch8.addGeometry([
    Part.Circle(V(-95, 85, 0), V(0, 0, 1), 27.5),
    Part.Circle(V(-95, 85, 0), V(0, 0, 1), 17.5),
], False)
sketch8.addConstraint([
    Sketcher.Constraint("Coincident", 1, 3, 0, 3),
    Sketcher.Constraint("Diameter", 0, Q("55 mm")),
    Sketcher.Constraint("Diameter", 1, Q("35 mm")),
    Sketcher.Constraint("DistanceX", 0, 3, -1, 1, Q("95 mm")),
    Sketcher.Constraint("DistanceY", -1, 1, 0, 3, Q("85 mm")),
])
pad2 = body.newObject("PartDesign::Pad", "Pad001")
pad2.Profile = sketch8
pad2.Length = 10
pad2.Reversed = True

# Sketch on YZ plane
sketch9 = body.newObject("Sketcher::SketchObject", "Sketch008")
sketch9.AttachmentSupport = (doc.getObject("YZ_Plane"), [""])
sketch9.MapMode = "FlatFace"
sketch9.AttachmentOffset = App.Placement(V(0, 0, 8), App.Rotation())
sketch9.addGeometry([
    Part.Circle(V(-72.5, 85, 0), V(0, 0, 1), 2.25),  # 0
    Part.Circle(V(-79.090097, 69.090097, 0), V(0, 0, 1), 2.25),  # 1
    Part.Circle(V(-95, 62.5, 0), V(0, 0, 1), 2.25),  # 2
    Part.Circle(V(-110.909903, 69.090097, 0), V(0, 0, 1), 2.25),  # 3
    Part.Circle(V(-117.5, 85, 0), V(0, 0, 1), 2.25),  # 4
    Part.Circle(V(-110.909903, 100.909903, 0), V(0, 0, 1), 2.25),  # 5
    Part.Circle(V(-95, 107.5, 0), V(0, 0, 1), 2.25),  # 6
    Part.Circle(V(-79.090097, 100.909903, 0), V(0, 0, 1), 2.25),  # 7
], False)
sketch9.addConstraint([
    Sketcher.Constraint("Equal", 0, 1),
    Sketcher.Constraint("Equal", 1, 2),
    Sketcher.Constraint("Equal", 2, 3),
    Sketcher.Constraint("Equal", 3, 4),
    Sketcher.Constraint("Equal", 4, 5),
    Sketcher.Constraint("Equal", 5, 6),
    Sketcher.Constraint("Equal", 6, 7),
    Sketcher.Constraint("Horizontal", 1, 3, 3, 3),
    Sketcher.Constraint("Horizontal", 0, 3, 4, 3),
    Sketcher.Constraint("Horizontal", 5, 3, 7, 3),
    Sketcher.Constraint("Vertical", 3, 3, 5, 3),
    Sketcher.Constraint("Vertical", 2, 3, 6, 3),
    Sketcher.Constraint("Vertical", 1, 3, 7, 3),
    Sketcher.Constraint("Diameter", 0, Q("4.5 mm")),
    Sketcher.Constraint("DistanceY", -1, 1, 0, 3, Q("85 mm")),
    Sketcher.Constraint("DistanceX", 2, 3, -1, 1, Q("95 mm")),
    Sketcher.Constraint("DistanceX", 4, 3, 0, 3, Q("45 mm")),
    Sketcher.Constraint("DistanceX", 0, 3, -1, 1, Q("72.5 mm")),
    Sketcher.Constraint("DistanceY", -1, 1, 2, 3, Q("62.5 mm")),
    Sketcher.Constraint("DistanceY", -1, 1, 6, 3, Q("107.5 mm")),
    Sketcher.Constraint("DistanceX", 1, 3, -1, 1, Q("79.090097 mm")),
    Sketcher.Constraint("DistanceY", -1, 1, 1, 3, Q("69.090097 mm")),
    Sketcher.Constraint("DistanceX", 3, 3, -1, 1, Q("110.909903 mm")),
    Sketcher.Constraint("DistanceY", -1, 1, 5, 3, Q("100.909903 mm")),
])
pocket7 = body.newObject("PartDesign::Pocket", "Pocket006")
pocket7.Profile = sketch9
pocket7.Length = 30
pocket7.Midplane = True

doc.recompute()
